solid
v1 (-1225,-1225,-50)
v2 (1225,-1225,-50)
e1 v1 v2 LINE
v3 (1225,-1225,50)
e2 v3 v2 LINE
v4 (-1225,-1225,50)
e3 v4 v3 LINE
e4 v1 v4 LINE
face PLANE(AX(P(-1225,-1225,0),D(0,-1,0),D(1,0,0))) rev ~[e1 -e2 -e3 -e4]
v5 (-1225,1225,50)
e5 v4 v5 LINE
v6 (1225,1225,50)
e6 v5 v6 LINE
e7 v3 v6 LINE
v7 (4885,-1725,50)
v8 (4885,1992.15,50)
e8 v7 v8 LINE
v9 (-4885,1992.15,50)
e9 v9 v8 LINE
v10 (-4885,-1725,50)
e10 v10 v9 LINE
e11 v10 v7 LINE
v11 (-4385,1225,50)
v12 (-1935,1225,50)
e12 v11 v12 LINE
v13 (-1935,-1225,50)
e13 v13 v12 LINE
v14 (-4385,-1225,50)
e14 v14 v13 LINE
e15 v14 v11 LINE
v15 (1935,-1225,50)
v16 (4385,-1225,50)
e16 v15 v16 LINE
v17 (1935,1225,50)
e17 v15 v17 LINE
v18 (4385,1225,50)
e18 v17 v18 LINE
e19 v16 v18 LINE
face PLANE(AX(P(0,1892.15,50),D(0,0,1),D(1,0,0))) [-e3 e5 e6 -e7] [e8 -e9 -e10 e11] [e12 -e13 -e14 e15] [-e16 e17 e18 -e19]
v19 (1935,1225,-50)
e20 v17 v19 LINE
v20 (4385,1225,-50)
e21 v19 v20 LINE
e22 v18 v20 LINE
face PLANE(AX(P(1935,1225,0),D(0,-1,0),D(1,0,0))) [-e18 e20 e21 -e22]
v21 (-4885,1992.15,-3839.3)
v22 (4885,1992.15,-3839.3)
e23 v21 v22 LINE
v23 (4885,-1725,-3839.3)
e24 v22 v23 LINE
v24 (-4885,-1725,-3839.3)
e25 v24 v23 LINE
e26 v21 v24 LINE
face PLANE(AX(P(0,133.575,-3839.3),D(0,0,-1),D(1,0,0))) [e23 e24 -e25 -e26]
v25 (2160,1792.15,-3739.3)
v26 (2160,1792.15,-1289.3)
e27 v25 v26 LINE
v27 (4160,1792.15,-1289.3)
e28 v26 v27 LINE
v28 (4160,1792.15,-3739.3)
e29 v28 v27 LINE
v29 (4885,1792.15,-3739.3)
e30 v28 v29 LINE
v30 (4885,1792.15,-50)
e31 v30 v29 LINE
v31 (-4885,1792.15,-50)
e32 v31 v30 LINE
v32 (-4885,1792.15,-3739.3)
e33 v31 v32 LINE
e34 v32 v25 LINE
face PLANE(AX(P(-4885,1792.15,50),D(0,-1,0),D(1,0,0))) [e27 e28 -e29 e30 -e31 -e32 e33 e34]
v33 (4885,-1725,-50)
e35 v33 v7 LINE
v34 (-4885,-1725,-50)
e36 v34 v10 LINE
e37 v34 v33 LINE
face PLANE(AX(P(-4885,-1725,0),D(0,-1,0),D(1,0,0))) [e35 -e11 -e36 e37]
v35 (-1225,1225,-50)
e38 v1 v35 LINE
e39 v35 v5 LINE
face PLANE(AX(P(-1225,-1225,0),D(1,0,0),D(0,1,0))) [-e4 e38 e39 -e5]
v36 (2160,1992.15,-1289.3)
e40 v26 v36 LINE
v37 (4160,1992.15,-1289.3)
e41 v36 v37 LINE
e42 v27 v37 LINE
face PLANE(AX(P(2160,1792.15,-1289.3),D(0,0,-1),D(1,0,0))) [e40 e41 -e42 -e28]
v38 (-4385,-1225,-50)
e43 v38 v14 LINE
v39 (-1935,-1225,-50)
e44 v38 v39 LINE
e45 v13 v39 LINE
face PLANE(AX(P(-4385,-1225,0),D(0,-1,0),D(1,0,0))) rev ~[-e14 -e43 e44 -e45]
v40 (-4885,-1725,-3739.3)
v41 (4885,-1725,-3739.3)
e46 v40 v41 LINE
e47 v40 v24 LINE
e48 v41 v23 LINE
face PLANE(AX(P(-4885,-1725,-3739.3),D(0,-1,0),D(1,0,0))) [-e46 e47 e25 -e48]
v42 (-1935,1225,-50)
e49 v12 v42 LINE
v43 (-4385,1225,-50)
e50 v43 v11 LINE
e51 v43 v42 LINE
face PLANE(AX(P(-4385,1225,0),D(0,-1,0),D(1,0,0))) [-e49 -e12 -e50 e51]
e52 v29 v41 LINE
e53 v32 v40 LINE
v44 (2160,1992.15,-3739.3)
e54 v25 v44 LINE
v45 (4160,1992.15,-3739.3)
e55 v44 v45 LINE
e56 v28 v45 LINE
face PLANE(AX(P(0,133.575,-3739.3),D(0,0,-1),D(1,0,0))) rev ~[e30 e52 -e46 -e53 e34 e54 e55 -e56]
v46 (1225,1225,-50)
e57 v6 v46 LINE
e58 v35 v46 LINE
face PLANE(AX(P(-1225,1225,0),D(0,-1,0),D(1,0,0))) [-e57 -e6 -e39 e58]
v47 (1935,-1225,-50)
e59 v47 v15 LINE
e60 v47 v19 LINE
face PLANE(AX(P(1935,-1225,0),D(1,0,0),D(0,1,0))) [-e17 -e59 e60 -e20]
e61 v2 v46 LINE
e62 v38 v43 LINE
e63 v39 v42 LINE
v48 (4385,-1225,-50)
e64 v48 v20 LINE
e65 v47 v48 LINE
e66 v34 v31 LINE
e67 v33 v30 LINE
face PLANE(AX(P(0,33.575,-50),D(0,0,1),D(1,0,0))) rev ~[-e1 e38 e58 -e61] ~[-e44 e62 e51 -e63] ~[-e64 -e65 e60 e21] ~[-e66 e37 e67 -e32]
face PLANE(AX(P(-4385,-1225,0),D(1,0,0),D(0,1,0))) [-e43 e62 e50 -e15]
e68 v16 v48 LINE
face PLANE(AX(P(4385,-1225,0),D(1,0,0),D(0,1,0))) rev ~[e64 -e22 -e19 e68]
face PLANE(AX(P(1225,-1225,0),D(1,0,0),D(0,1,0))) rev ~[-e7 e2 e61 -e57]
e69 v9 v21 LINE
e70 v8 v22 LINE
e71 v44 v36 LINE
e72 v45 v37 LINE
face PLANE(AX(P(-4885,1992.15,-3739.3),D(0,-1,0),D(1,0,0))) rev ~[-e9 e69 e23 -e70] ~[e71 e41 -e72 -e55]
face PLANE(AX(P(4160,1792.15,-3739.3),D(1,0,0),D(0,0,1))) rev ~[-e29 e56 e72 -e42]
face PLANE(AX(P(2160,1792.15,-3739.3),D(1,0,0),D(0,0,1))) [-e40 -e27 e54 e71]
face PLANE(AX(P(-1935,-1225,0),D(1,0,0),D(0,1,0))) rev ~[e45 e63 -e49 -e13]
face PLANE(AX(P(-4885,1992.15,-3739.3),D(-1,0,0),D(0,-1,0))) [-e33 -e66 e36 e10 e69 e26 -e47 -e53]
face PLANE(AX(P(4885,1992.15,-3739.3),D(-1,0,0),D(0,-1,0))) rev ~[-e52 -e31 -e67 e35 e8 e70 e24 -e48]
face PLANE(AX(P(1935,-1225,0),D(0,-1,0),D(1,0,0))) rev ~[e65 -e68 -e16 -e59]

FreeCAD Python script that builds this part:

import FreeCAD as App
import Part
import Sketcher
Q = App.Units.Quantity

doc = App.newDocument("Part")
body = doc.addObject("PartDesign::Body", "Body")

sketch1 = body.newObject("Sketcher::SketchObject", "Sketch")
sketch1.AttachmentSupport = (doc.getObject("XY_Plane"), [""])
sketch1.MapMode = "FlatFace"
sketch1.addGeometry([
    Part.LineSegment(App.Vector(-4885, 1792, 0), App.Vector(-4885, -1725, 0)),
    Part.LineSegment(App.Vector(-4885, -1725, 0), App.Vector(4885, -1725, 0)),
    Part.LineSegment(App.Vector(4885, -1725, 0), App.Vector(4885, 1792, 0)),
    Part.LineSegment(App.Vector(4885, 1792, 0), App.Vector(-4885, 1792, 0)),
    Part.LineSegment(App.Vector(-1935, -1225, 0), App.Vector(-4385, -1225, 0)),
    Part.LineSegment(App.Vector(-4385, -1225, 0), App.Vector(-4385, 1225, 0)),
    Part.LineSegment(App.Vector(-4385, 1225, 0), App.Vector(-1935, 1225, 0)),
    Part.LineSegment(App.Vector(-1935, 1225, 0), App.Vector(-1935, -1225, 0)),
    Part.LineSegment(App.Vector(1225, -1225, 0), App.Vector(-1225, -1225, 0)),
    Part.LineSegment(App.Vector(-1225, -1225, 0), App.Vector(-1225, 1225, 0)),
    Part.LineSegment(App.Vector(-1225, 1225, 0), App.Vector(1225, 1225, 0)),
    Part.LineSegment(App.Vector(1225, 1225, 0), App.Vector(1225, -1225, 0)),
    Part.LineSegment(App.Vector(4385, -1225, 0), App.Vector(1935, -1225, 0)),
    Part.LineSegment(App.Vector(1935, -1225, 0), App.Vector(1935, 1225, 0)),
    Part.LineSegment(App.Vector(1935, 1225, 0), App.Vector(4385, 1225, 0)),
    Part.LineSegment(App.Vector(4385, 1225, 0), App.Vector(4385, -1225, 0)),
], False)
sketch1.addConstraint([
    Sketcher.Constraint("Coincident", 0, 2, 1, 1),
    Sketcher.Constraint("Coincident", 1, 2, 2, 1),
    Sketcher.Constraint("Coincident", 2, 2, 3, 1),
    Sketcher.Constraint("Coincident", 3, 2, 0, 1),
    Sketcher.Constraint("Coincident", 4, 2, 5, 1),
    Sketcher.Constraint("Coincident", 5, 2, 6, 1),
    Sketcher.Constraint("Coincident", 6, 2, 7, 1),
    Sketcher.Constraint("Coincident", 7, 2, 4, 1),
    Sketcher.Constraint("Coincident", 8, 2, 9, 1),
    Sketcher.Constraint("Coincident", 9, 2, 10, 1),
    Sketcher.Constraint("Coincident", 10, 2, 11, 1),
    Sketcher.Constraint("Coincident", 11, 2, 8, 1),
    Sketcher.Constraint("Coincident", 12, 2, 13, 1),
    Sketcher.Constraint("Coincident", 13, 2, 14, 1),
    Sketcher.Constraint("Coincident", 14, 2, 15, 1),
    Sketcher.Constraint("Coincident", 15, 2, 12, 1),
    Sketcher.Constraint("Vertical", 0),
    Sketcher.Constraint("Horizontal", 1),
    Sketcher.Constraint("Vertical", 2),
    Sketcher.Constraint("Horizontal", 3),
    Sketcher.Constraint("Horizontal", 4),
    Sketcher.Constraint("Vertical", 5),
    Sketcher.Constraint("Horizontal", 6),
    Sketcher.Constraint("Vertical", 7),
    Sketcher.Constraint("Horizontal", 8),
    Sketcher.Constraint("Vertical", 9),
    Sketcher.Constraint("Horizontal", 10),
    Sketcher.Constraint("Vertical", 11),
    Sketcher.Constraint("Horizontal", 12),
    Sketcher.Constraint("Vertical", 13),
    Sketcher.Constraint("Horizontal", 14),
    Sketcher.Constraint("Vertical", 15),
    Sketcher.Constraint("Symmetric", 8, 2, 10, 2, -1, 1),
    Sketcher.Constraint("Symmetric", 6, 2, 12, 2, -1, 1),
    Sketcher.Constraint("Symmetric", 4, 2, 14, 2, -1, 1),
    Sketcher.Constraint("Horizontal", 7, 2, 8, 2),
    Sketcher.Constraint("Horizontal", 6, 2, 9, 2),
    Sketcher.Constraint("Equal", 6, 8),
    Sketcher.Constraint("Equal", 14, 5),
    Sketcher.Constraint("DistanceX", 1, 1, 1, 2, Q("9770 mm")),
    Sketcher.Constraint("DistanceX", 4, 2, 4, 1, Q("2450 mm")),
    Sketcher.Constraint("DistanceX", 0, 2, -1, 1, Q("4885 mm")),
    Sketcher.Constraint("DistanceY", 0, 2, -1, 1, Q("1725 mm")),
    Sketcher.Constraint("DistanceX", 4, 2, -1, 1, Q("4385 mm")),
    Sketcher.Constraint("DistanceY", 0, 2, 0, 1, Q("3517.15 mm")),
])
pad1 = body.newObject("PartDesign::Pad", "Pad")
pad1.Profile = sketch1
pad1.Length = 100
pad1.Midplane = True

sketch2 = body.newObject("Sketcher::SketchObject", "Sketch001")
sketch2.AttachmentSupport = (doc.getObject("XY_Plane"), [""])
sketch2.MapMode = "FlatFace"
sketch2.AttachmentOffset = App.Placement(App.Vector(0, 0, 50), App.Rotation())
sketch2.addGeometry([
    Part.LineSegment(App.Vector(-4885, 1992, 0), App.Vector(-4885, 1792, 0)),
    Part.LineSegment(App.Vector(-4885, 1792, 0), App.Vector(4885, 1792, 0)),
    Part.LineSegment(App.Vector(4885, 1792, 0), App.Vector(4885, 1992, 0)),
    Part.LineSegment(App.Vector(4885, 1992, 0), App.Vector(-4885, 1992, 0)),
], False)
sketch2.addConstraint([
    Sketcher.Constraint("Coincident", 0, 2, 1, 1),
    Sketcher.Constraint("Coincident", 1, 2, 2, 1),
    Sketcher.Constraint("Coincident", 2, 2, 3, 1),
    Sketcher.Constraint("Coincident", 3, 2, 0, 1),
    Sketcher.Constraint("Vertical", 0),
    Sketcher.Constraint("Horizontal", 1),
    Sketcher.Constraint("Vertical", 2),
    Sketcher.Constraint("Horizontal", 3),
    Sketcher.Constraint("DistanceX", 1, 1, 1, 2, Q("9770 mm")),
    Sketcher.Constraint("DistanceY", 0, 2, 0, 1, Q("200 mm")),
    Sketcher.Constraint("DistanceX", 0, 2, -1, 1, Q("4885 mm")),
    Sketcher.Constraint("DistanceY", -1, 1, 0, 2, Q("1792.15 mm")),
])
pad2 = body.newObject("PartDesign::Pad", "Pad001")
pad2.Profile = sketch2
pad2.Length = 3789.3
pad2.Reversed = True

sketch3 = body.newObject("Sketcher::SketchObject", "Sketch002")
sketch3.AttachmentSupport = (doc.getObject("XY_Plane"), [""])
sketch3.MapMode = "FlatFace"
sketch3.AttachmentOffset = App.Placement(App.Vector(0, 0, -3739.3), App.Rotation())
sketch3.addGeometry([
    Part.LineSegment(App.Vector(-4885, -1725, 0), App.Vector(-4885, 1992, 0)),
    Part.LineSegment(App.Vector(-4885, 1992, 0), App.Vector(4885, 1992, 0)),
    Part.LineSegment(App.Vector(4885, 1992, 0), App.Vector(4885, -1725, 0)),
    Part.LineSegment(App.Vector(4885, -1725, 0), App.Vector(-4885, -1725, 0)),
], False)
sketch3.addConstraint([
    Sketcher.Constraint("Coincident", 0, 2, 1, 1),
    Sketcher.Constraint("Coincident", 1, 2, 2, 1),
    Sketcher.Constraint("Coincident", 2, 2, 3, 1),
    Sketcher.Constraint("Coincident", 3, 2, 0, 1),
    Sketcher.Constraint("Vertical", 0),
    Sketcher.Constraint("Horizontal", 1),
    Sketcher.Constraint("Vertical", 2),
    Sketcher.Constraint("Horizontal", 3),
    Sketcher.Constraint("DistanceX", 1, 1, 1, 2, Q("9770 mm")),
    Sketcher.Constraint("DistanceX", 0, 2, -1, 1, Q("4885 mm")),
    Sketcher.Constraint("DistanceY", 2, 2, -1, 1, Q("1725 mm")),
    Sketcher.Constraint("DistanceY", 0, 1, 0, 2, Q("3717.15 mm")),
])
pad3 = body.newObject("PartDesign::Pad", "Pad002")
pad3.Profile = sketch3
pad3.Length = 100
pad3.Reversed = True

sketch4 = body.newObject("Sketcher::SketchObject", "Sketch003")
sketch4.AttachmentSupport = (doc.getObject("XZ_Plane"), [""])
sketch4.MapMode = "FlatFace"
sketch4.AttachmentOffset = App.Placement(App.Vector(0, 0, -1792.15), App.Rotation())
sketch4.addGeometry([
    Part.LineSegment(App.Vector(2160, -1289, 0), App.Vector(2160, -3739, 0)),
    Part.LineSegment(App.Vector(2160, -3739, 0), App.Vector(4160, -3739, 0)),
    Part.LineSegment(App.Vector(4160, -3739, 0), App.Vector(4160, -1289, 0)),
    Part.LineSegment(App.Vector(4160, -1289, 0), App.Vector(2160, -1289, 0)),
], False)
sketch4.addConstraint([
    Sketcher.Constraint("Coincident", 0, 2, 1, 1),
    Sketcher.Constraint("Coincident", 1, 2, 2, 1),
    Sketcher.Constraint("Coincident", 2, 2, 3, 1),
    Sketcher.Constraint("Coincident", 3, 2, 0, 1),
    Sketcher.Constraint("Vertical", 0),
    Sketcher.Constraint("Horizontal", 1),
    Sketcher.Constraint("Vertical", 2),
    Sketcher.Constraint("Horizontal", 3),
    Sketcher.Constraint("DistanceX", 1, 1, 1, 2, Q("2000 mm")),
    Sketcher.Constraint("DistanceY", 0, 2, 0, 1, Q("2450 mm")),
    Sketcher.Constraint("DistanceX", -1, 1, 0, 2, Q("2160 mm")),
    Sketcher.Constraint("DistanceY", 0, 2, -1, 1, Q("3739.3 mm")),
])
pocket1 = body.newObject("PartDesign::Pocket", "Pocket")
pocket1.Profile = sketch4
pocket1.Type = "ThroughAll"

doc.recompute()
